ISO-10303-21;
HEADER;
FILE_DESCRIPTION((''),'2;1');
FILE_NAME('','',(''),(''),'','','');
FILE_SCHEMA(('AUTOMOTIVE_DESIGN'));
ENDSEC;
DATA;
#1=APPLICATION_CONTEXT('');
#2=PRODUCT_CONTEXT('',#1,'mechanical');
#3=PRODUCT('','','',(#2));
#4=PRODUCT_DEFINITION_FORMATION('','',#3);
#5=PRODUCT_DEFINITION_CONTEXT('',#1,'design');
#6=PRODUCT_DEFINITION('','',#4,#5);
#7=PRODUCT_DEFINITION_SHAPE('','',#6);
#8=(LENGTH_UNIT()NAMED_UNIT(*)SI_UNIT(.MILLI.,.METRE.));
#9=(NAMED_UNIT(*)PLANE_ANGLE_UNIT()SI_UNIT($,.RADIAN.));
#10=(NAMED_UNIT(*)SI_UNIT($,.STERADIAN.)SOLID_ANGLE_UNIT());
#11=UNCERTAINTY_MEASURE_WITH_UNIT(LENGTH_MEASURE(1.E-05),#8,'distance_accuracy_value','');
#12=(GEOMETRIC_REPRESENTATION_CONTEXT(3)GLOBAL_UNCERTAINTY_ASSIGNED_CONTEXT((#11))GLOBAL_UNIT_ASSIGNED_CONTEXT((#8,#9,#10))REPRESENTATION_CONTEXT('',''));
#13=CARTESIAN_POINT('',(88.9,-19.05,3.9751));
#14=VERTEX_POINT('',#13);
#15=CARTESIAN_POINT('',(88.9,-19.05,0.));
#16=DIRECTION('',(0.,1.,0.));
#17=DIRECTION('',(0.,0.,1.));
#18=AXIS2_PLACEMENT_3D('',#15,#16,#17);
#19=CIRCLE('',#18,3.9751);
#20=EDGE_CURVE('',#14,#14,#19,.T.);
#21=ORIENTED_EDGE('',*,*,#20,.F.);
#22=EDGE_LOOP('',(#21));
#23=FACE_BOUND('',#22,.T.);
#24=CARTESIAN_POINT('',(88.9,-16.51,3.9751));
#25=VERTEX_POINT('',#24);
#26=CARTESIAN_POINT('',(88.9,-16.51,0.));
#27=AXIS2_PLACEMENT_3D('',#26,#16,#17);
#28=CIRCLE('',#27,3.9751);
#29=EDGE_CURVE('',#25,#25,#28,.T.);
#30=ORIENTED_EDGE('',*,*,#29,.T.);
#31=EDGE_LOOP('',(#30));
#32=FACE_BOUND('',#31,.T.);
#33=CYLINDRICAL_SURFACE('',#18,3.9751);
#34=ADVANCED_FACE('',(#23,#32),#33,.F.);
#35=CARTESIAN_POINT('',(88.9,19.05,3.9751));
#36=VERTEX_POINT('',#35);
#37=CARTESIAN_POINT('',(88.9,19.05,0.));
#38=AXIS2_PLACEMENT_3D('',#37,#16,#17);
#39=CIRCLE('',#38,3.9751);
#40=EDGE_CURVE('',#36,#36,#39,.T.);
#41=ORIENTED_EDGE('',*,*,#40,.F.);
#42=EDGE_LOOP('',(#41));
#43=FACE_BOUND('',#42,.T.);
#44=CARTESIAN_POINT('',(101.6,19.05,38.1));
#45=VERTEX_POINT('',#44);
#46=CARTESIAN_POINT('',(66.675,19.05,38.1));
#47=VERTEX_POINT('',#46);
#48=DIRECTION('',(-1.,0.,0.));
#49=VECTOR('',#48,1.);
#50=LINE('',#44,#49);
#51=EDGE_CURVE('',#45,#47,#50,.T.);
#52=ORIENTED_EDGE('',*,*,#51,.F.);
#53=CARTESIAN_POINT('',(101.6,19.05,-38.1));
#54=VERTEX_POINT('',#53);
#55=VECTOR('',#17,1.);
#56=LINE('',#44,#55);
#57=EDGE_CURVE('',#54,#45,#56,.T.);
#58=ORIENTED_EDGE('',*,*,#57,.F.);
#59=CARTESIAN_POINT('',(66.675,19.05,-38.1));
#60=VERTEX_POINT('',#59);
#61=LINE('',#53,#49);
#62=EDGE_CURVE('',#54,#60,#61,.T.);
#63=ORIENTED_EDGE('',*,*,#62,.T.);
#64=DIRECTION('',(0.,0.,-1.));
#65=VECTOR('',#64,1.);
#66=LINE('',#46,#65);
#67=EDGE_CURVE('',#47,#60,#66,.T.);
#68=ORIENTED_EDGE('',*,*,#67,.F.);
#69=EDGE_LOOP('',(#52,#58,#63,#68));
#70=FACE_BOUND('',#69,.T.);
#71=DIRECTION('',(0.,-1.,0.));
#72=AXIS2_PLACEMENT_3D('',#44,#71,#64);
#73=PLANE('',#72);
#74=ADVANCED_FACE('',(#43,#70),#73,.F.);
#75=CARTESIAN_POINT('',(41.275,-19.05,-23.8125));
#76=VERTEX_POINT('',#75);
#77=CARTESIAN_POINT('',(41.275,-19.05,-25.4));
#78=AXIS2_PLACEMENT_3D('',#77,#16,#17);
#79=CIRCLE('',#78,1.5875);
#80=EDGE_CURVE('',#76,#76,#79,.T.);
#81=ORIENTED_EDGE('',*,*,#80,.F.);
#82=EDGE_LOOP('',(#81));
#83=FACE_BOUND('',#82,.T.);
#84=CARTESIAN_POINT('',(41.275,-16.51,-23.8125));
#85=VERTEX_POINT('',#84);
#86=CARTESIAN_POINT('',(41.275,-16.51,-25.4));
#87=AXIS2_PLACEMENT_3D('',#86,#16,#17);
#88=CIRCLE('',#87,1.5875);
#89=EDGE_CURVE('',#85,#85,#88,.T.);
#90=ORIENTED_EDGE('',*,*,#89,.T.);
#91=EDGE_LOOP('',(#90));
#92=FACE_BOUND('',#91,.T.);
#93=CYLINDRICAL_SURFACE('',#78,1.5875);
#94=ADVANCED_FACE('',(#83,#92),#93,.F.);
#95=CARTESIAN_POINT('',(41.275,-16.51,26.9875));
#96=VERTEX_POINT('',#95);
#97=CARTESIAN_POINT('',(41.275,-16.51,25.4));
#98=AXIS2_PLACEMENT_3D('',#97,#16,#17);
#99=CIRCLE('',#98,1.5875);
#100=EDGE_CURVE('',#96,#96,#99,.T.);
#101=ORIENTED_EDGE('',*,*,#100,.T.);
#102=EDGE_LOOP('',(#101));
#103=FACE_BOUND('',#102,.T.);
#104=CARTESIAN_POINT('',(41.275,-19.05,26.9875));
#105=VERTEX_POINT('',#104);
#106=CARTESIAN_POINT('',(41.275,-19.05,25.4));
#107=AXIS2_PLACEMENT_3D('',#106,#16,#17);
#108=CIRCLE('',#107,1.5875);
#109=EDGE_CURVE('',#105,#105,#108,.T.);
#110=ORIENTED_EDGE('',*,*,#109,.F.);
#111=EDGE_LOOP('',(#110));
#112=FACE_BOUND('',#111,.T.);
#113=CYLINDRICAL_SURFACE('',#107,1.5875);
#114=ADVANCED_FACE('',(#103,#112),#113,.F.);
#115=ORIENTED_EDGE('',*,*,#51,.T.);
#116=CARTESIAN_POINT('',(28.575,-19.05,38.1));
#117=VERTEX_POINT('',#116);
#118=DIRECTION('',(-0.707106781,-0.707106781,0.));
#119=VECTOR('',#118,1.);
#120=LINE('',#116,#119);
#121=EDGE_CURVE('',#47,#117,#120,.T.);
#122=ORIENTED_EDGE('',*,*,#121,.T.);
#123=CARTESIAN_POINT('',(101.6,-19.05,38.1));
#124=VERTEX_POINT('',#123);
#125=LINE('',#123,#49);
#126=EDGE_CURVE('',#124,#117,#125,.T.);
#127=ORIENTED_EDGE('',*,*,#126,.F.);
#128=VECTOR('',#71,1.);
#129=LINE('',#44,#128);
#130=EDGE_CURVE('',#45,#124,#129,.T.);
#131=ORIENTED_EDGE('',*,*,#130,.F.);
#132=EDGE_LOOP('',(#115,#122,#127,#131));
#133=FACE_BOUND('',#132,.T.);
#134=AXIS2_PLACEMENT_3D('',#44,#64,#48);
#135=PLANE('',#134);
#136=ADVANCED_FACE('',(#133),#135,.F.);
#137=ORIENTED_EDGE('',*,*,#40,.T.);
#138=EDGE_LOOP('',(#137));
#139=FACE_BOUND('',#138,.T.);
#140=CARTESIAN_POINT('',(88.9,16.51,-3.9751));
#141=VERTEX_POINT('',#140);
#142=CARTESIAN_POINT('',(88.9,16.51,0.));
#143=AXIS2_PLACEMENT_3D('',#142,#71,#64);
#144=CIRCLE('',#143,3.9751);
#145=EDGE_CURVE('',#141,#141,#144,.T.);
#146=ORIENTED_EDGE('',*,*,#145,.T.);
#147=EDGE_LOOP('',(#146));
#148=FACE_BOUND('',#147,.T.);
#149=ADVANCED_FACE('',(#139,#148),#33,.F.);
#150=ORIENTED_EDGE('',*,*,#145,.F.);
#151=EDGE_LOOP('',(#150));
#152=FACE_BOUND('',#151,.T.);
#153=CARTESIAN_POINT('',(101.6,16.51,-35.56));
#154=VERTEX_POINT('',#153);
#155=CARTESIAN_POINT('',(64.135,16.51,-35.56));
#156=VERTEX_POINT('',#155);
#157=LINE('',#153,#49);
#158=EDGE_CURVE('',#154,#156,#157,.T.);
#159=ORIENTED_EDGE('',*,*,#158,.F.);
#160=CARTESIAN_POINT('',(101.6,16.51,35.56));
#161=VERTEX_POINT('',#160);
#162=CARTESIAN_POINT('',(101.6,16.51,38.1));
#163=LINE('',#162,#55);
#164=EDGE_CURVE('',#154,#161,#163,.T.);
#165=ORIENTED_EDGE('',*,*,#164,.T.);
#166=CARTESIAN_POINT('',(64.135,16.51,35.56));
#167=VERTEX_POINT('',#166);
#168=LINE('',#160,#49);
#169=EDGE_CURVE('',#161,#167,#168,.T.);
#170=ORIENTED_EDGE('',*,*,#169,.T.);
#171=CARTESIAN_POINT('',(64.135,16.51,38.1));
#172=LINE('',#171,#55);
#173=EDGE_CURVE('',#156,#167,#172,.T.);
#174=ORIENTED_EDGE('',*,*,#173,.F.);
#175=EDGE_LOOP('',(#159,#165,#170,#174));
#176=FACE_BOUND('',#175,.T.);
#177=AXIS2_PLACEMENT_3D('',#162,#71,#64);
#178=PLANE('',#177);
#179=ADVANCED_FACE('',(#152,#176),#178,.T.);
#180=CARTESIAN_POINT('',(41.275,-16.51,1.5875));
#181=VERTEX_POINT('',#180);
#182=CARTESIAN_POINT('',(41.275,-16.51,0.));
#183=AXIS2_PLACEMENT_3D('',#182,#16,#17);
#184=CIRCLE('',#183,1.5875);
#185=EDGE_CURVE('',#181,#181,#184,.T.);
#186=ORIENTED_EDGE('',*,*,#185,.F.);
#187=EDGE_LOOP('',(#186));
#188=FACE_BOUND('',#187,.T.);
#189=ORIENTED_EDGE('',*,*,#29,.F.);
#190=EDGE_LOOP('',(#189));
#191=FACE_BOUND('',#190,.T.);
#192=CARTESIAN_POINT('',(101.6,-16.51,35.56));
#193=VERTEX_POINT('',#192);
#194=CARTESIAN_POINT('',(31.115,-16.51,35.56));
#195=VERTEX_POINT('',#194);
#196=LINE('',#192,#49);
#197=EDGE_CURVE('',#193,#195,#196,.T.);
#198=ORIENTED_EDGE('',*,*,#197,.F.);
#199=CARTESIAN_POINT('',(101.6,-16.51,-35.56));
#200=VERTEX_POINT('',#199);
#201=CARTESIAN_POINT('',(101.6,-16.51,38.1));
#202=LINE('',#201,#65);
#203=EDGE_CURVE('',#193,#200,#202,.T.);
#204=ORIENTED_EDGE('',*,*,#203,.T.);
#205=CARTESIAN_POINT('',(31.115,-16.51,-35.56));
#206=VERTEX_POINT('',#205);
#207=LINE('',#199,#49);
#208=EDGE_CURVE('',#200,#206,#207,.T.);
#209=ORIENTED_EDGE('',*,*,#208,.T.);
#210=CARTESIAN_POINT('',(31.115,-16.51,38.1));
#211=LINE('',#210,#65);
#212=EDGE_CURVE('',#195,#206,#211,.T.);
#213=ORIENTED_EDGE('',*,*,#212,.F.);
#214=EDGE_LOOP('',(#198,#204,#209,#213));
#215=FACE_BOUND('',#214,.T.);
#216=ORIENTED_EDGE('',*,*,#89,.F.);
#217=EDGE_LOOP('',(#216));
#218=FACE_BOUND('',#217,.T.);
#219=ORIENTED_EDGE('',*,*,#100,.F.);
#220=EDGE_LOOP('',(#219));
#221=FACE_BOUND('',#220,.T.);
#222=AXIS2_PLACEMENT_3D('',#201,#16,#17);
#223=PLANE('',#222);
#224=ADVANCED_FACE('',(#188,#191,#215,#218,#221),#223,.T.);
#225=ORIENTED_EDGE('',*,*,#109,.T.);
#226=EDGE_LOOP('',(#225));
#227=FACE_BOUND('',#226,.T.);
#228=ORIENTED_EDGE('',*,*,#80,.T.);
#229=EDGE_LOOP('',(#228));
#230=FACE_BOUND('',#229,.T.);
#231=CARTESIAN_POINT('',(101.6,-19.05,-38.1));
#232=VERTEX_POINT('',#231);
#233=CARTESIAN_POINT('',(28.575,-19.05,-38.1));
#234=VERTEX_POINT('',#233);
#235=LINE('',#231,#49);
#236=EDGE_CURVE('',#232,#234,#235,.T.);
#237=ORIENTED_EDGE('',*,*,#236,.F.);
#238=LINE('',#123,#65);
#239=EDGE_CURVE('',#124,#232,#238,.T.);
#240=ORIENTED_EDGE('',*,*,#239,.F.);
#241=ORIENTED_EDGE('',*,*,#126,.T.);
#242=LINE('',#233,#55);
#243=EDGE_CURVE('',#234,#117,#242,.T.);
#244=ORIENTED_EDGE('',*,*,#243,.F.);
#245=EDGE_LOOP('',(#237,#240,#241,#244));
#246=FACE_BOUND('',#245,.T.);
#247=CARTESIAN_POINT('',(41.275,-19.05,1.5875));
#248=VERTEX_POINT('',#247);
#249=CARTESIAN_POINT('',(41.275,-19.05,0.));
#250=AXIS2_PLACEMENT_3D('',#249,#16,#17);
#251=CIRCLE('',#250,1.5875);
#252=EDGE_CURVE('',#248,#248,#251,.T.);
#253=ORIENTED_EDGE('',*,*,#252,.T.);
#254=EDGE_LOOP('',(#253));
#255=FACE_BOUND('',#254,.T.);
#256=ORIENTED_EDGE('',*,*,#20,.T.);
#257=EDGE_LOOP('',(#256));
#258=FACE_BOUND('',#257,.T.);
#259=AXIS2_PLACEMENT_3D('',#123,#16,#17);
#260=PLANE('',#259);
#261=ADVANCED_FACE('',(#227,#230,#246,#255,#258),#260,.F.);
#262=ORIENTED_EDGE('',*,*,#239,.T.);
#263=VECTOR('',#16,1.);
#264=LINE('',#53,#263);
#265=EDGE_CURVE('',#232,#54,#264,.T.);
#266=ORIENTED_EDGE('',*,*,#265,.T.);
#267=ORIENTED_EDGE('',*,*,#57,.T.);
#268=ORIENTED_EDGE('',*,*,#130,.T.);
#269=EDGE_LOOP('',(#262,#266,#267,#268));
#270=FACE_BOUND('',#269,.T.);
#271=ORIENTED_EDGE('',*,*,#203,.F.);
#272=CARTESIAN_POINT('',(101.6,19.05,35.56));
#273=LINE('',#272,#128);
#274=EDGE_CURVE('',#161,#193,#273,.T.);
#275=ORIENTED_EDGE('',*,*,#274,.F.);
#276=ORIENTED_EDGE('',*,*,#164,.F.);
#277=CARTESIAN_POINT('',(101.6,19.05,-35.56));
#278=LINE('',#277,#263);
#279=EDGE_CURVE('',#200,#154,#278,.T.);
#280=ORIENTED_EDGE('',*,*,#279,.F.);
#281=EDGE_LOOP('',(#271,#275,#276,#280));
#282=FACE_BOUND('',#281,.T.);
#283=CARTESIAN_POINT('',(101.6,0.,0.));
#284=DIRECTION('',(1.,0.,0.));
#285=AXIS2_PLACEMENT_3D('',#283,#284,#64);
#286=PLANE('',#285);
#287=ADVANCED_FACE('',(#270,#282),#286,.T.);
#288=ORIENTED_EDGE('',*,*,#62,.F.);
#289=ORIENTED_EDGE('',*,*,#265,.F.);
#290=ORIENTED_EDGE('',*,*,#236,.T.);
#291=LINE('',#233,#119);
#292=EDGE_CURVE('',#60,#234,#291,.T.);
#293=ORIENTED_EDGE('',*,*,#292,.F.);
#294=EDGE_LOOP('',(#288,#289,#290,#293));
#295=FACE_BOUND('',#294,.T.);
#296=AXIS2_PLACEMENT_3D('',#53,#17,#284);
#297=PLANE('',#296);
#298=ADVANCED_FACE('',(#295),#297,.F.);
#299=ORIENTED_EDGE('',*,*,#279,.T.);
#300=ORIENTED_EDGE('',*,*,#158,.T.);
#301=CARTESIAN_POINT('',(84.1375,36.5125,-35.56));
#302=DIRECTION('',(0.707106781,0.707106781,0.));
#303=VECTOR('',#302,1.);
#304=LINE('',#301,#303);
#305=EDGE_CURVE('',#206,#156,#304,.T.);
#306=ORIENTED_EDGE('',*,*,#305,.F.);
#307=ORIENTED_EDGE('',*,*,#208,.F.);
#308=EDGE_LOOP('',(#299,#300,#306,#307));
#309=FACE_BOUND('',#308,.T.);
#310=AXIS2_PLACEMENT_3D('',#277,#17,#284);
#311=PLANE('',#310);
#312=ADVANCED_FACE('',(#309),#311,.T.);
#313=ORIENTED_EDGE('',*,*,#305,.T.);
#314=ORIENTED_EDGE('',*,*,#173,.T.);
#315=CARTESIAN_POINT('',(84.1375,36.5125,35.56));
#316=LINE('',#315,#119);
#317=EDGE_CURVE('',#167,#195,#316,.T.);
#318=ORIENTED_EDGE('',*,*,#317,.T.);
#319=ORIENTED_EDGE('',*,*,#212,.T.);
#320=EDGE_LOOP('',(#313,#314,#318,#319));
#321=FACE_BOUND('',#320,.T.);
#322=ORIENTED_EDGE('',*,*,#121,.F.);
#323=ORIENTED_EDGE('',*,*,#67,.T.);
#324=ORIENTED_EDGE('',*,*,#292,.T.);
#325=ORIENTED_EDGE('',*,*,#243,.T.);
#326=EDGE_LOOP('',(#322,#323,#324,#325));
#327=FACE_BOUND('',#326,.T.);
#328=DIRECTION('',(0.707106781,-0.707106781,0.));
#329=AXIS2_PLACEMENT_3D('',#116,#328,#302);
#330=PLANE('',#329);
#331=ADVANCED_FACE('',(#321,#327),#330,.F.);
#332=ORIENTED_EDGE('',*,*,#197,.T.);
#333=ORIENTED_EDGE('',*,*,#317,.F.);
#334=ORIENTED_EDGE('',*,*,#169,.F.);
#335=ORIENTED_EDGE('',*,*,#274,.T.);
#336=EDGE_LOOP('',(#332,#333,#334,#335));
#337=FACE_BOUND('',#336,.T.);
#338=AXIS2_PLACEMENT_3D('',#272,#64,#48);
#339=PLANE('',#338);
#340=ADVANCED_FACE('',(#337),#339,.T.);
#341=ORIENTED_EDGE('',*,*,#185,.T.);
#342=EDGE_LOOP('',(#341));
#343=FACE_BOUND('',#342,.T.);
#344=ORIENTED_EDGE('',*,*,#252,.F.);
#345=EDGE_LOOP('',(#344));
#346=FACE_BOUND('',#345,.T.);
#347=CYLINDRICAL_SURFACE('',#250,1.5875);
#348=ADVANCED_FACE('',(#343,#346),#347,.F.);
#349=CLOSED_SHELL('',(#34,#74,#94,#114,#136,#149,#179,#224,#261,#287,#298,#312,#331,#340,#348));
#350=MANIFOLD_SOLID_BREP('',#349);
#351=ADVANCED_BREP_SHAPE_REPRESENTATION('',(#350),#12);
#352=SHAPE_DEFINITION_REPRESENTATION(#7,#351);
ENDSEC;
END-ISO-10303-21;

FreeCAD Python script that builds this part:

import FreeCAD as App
import Part
import Sketcher

V = App.Vector
Q = App.Units.Quantity

doc = App.newDocument("Part")
body = doc.addObject("PartDesign::Body", "Body")

# Sketch on YZ plane
sketch1 = body.newObject("Sketcher::SketchObject", "Sketch")
sketch1.AttachmentSupport = (doc.getObject("YZ_Plane"), [""])
sketch1.MapMode = "FlatFace"
sketch1.addGeometry([
    Part.LineSegment(V(19.05, 38.1, 0), V(-19.05, 38.1, 0)),  # 0
    Part.LineSegment(V(-19.05, 38.1, 0), V(-19.05, -38.1, 0)),  # 1
    Part.LineSegment(V(-19.05, -38.1, 0), V(19.05, -38.1, 0)),  # 2
    Part.LineSegment(V(19.05, -38.1, 0), V(19.05, 38.1, 0)),  # 3
    Part.LineSegment(V(-16.51, -35.56, 0), V(-16.51, 35.56, 0)),  # 4
    Part.LineSegment(V(-16.51, 35.56, 0), V(16.51, 35.56, 0)),  # 5
    Part.LineSegment(V(16.51, 35.56, 0), V(16.51, -35.56, 0)),  # 6
    Part.LineSegment(V(16.51, -35.56, 0), V(-16.51, -35.56, 0)),  # 7
], False)
sketch1.addConstraint([
    Sketcher.Constraint("Coincident", 0, 2, 1, 1),
    Sketcher.Constraint("Coincident", 1, 2, 2, 1),
    Sketcher.Constraint("Coincident", 2, 2, 3, 1),
    Sketcher.Constraint("Coincident", 3, 2, 0, 1),
    Sketcher.Constraint("Coincident", 4, 2, 5, 1),
    Sketcher.Constraint("Coincident", 5, 2, 6, 1),
    Sketcher.Constraint("Coincident", 6, 2, 7, 1),
    Sketcher.Constraint("Coincident", 7, 2, 4, 1),
    Sketcher.Constraint("Horizontal", 0),
    Sketcher.Constraint("Vertical", 1),
    Sketcher.Constraint("Horizontal", 2),
    Sketcher.Constraint("Vertical", 3),
    Sketcher.Constraint("Vertical", 4),
    Sketcher.Constraint("Horizontal", 5),
    Sketcher.Constraint("Vertical", 6),
    Sketcher.Constraint("Horizontal", 7),
    Sketcher.Constraint("Symmetric", 0, 2, 2, 2, -1, 1),
    Sketcher.Constraint("Symmetric", 4, 2, 6, 2, -1, 1),
    Sketcher.Constraint("DistanceY", 1, 2, 1, 1, Q("3 in")),
    Sketcher.Constraint("DistanceX", 0, 2, 0, 1, Q("1.5 in")),
    Sketcher.Constraint("DistanceX", 5, 1, 5, 2, Q("1.3 in")),
    Sketcher.Constraint("DistanceY", 4, 1, 4, 2, Q("2.8 in")),
])
pad1 = body.newObject("PartDesign::Pad", "Pad")
pad1.Profile = sketch1
pad1.Length = Q("4 in")

# Sketch on XZ plane
sketch2 = body.newObject("Sketcher::SketchObject", "Sketch001")
sketch2.AttachmentSupport = (doc.getObject("XZ_Plane"), [""])
sketch2.MapMode = "FlatFace"
sketch2.AttachmentOffset = App.Placement(V(0, 0, -0.75 * 25.4), App.Rotation())
sketch2.addGeometry(Part.Circle(V(88.9, 0, 0), V(0, 0, 1), 3.9751), False)
sketch2.addConstraint([
    Sketcher.Constraint("PointOnObject", 0, 3, -1),
    Sketcher.Constraint("Diameter", 0, Q("0.313 in")),
    Sketcher.Constraint("DistanceX", -1, 1, 0, 3, Q("3.5 in")),
])
pocket1 = body.newObject("PartDesign::Pocket", "Pocket")
pocket1.Profile = sketch2
pocket1.Type = "ThroughAll"
pocket1.Reversed = True

# Sketch on YZ plane
sketch3 = body.newObject("Sketcher::SketchObject", "Sketch002")
sketch3.AttachmentSupport = (doc.getObject("YZ_Plane"), [""])
sketch3.MapMode = "FlatFace"
sketch3.addGeometry([
    Part.LineSegment(V(19.05, -38.1, 0), V(-19.05, -38.1, 0)),
    Part.LineSegment(V(-19.05, -38.1, 0), V(-19.05, 38.1, 0)),
    Part.LineSegment(V(-19.05, 38.1, 0), V(19.05, 38.1, 0)),
    Part.LineSegment(V(19.05, 38.1, 0), V(19.05, -38.1, 0)),
], False)
sketch3.addConstraint([
    Sketcher.Constraint("Coincident", 0, 2, 1, 1),
    Sketcher.Constraint("Coincident", 1, 2, 2, 1),
    Sketcher.Constraint("Coincident", 2, 2, 3, 1),
    Sketcher.Constraint("Coincident", 3, 2, 0, 1),
    Sketcher.Constraint("Horizontal", 0),
    Sketcher.Constraint("Vertical", 1),
    Sketcher.Constraint("Horizontal", 2),
    Sketcher.Constraint("Vertical", 3),
    Sketcher.Constraint("Symmetric", 0, 2, 2, 2, -1, 1),
    Sketcher.Constraint("DistanceY", 1, 1, 1, 2, Q("3 in")),
    Sketcher.Constraint("DistanceX", 0, 2, 0, 1, Q("1.5 in")),
])
pocket2 = body.newObject("PartDesign::Pocket", "Pocket001")
pocket2.Profile = sketch3
pocket2.Length = Q("1.125 in")
pocket2.Reversed = True

# Sketch on XY plane
sketch4 = body.newObject("Sketcher::SketchObject", "Sketch003")
sketch4.AttachmentSupport = (doc.getObject("XY_Plane"), [""])
sketch4.MapMode = "FlatFace"
sketch4.AttachmentOffset = App.Placement(V(0, 0, -1.5 * 25.4), App.Rotation())
sketch4.addGeometry([
    Part.LineSegment(V(66.675, 19.05, 0), V(28.575, -19.05, 0)),
    Part.LineSegment(V(28.575, -19.05, 0), V(28.575, 19.05, 0)),
    Part.LineSegment(V(28.575, 19.05, 0), V(66.675, 19.05, 0)),
], False)
sketch4.addConstraint([
    Sketcher.Constraint("Coincident", 0, 2, 1, 1),
    Sketcher.Constraint("Coincident", 1, 2, 2, 1),
    Sketcher.Constraint("Coincident", 2, 2, 0, 1),
    Sketcher.Constraint("Vertical", 1),
    Sketcher.Constraint("Horizontal", 2),
    Sketcher.Constraint("Equal", 2, 1),
    Sketcher.Constraint("DistanceX", 2, 1, 2, 2, Q("1.5 in")),
    Sketcher.Constraint("DistanceY", 0, 2, -1, 1, Q("0.75 in")),
    Sketcher.Constraint("DistanceX", -1, 1, 0, 2, Q("1.125 in")),
])
pocket3 = body.newObject("PartDesign::Pocket", "Pocket002")
pocket3.Profile = sketch4
pocket3.Type = "ThroughAll"
pocket3.Reversed = True

# Sketch on XZ plane
sketch5 = body.newObject("Sketcher::SketchObject", "Sketch004")
sketch5.AttachmentSupport = (doc.getObject("XZ_Plane"), [""])
sketch5.MapMode = "FlatFace"
sketch5.AttachmentOffset = App.Placement(V(0, 0, 0.65 * 25.4), App.Rotation())
sketch5.addGeometry([
    Part.Circle(V(41.275, 0, 0), V(0, 0, 1), 1.5875),
    Part.Circle(V(41.275, 25.4, 0), V(0, 0, 1), 1.5875),
    Part.Circle(V(41.275, -25.4, 0), V(0, 0, 1), 1.5875),
], False)
sketch5.addConstraint([
    Sketcher.Constraint("Equal", 0, 1),
    Sketcher.Constraint("Equal", 1, 2),
    Sketcher.Constraint("Symmetric", 1, 3, 2, 3, -1),
    Sketcher.Constraint("PointOnObject", 0, 3, -1),
    Sketcher.Constraint("Vertical", 0, 3, 1, 3),
    Sketcher.Constraint("Diameter", 0, Q("0.125 in")),
    Sketcher.Constraint("DistanceY", -1, 1, 1, 3, Q("1 in")),
    Sketcher.Constraint("DistanceX", -1, 1, 0, 3, Q("1.625 in")),
])
pocket4 = body.newObject("PartDesign::Pocket", "Pocket003")
pocket4.Profile = sketch5
pocket4.Type = "ThroughAll"
pocket4.Reversed = True

doc.recompute()
